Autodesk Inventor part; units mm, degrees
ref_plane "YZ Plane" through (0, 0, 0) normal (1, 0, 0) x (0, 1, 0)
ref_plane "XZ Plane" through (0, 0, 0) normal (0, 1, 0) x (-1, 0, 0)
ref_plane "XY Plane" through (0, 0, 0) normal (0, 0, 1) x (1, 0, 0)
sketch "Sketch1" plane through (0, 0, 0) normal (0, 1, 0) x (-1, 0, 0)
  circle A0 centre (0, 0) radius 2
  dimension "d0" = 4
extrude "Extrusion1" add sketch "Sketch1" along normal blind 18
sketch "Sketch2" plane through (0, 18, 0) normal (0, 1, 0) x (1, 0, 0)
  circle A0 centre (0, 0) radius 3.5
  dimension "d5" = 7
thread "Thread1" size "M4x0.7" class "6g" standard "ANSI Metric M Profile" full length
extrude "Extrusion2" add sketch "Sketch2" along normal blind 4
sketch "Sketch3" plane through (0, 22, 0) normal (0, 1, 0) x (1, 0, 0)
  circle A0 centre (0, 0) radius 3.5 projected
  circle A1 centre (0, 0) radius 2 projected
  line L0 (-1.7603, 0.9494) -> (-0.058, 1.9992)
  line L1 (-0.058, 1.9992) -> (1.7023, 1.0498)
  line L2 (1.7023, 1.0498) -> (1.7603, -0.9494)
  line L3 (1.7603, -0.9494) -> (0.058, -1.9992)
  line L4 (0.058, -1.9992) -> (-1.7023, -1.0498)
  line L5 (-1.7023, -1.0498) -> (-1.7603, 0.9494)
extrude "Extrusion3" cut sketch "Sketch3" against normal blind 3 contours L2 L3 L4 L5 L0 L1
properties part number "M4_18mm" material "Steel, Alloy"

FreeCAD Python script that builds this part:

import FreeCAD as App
import Part
import Sketcher

V = App.Vector
Q = App.Units.Quantity

doc = App.newDocument("Part")
body = doc.addObject("PartDesign::Body", "Body")

sketch1 = doc.addObject("Sketcher::SketchObject", "Sketch")
body.addObject(sketch1)
sketch1.AttachmentSupport = (doc.XZ_Plane, [""])
sketch1.MapMode = "FlatFace"
sketch1.addGeometry(Part.Circle(V(0, 0, 0), V(0, 0, 1), 2), False)
sketch1.addConstraint(Sketcher.Constraint("Coincident", 0, 3, -1, 1))
sketch1.addConstraint(Sketcher.Constraint("Diameter", 0, Q("4 mm")))
pad1 = doc.addObject("PartDesign::Pad", "Pad")
body.addObject(pad1)
pad1.Profile = sketch1
pad1.Length = 18
pad1.Reversed = True

sketch2 = doc.addObject("Sketcher::SketchObject", "Sketch001")
body.addObject(sketch2)
sketch2.AttachmentSupport = (doc.XZ_Plane, [""])
sketch2.MapMode = "FlatFace"
sketch2.AttachmentOffset = App.Placement(V(0, 0, -18), App.Rotation())
sketch2.addGeometry(Part.Circle(V(0, 0, 0), V(0, 0, 1), 3.5), False)
sketch2.addConstraint(Sketcher.Constraint("Coincident", 0, 3, -1, 1))
sketch2.addConstraint(Sketcher.Constraint("Diameter", 0, Q("7 mm")))
pad2 = doc.addObject("PartDesign::Pad", "Pad001")
body.addObject(pad2)
pad2.Profile = sketch2
pad2.Length = 4
pad2.Reversed = True

sketch3 = doc.addObject("Sketcher::SketchObject", "Sketch002")
body.addObject(sketch3)
sketch3.AttachmentSupport = (doc.XZ_Plane, [""])
sketch3.MapMode = "FlatFace"
sketch3.AttachmentOffset = App.Placement(V(0, 0, -22), App.Rotation())
sketch3.addGeometry(Part.LineSegment(V(1.8, 0.9, 0), V(1.7, -1, 0)), False)
sketch3.addGeometry(Part.LineSegment(V(1.7, -1, 0), V(-0.1, -2, 0)), False)
sketch3.addGeometry(Part.LineSegment(V(-0.1, -2, 0), V(-1.8, -0.9, 0)), False)
sketch3.addGeometry(Part.LineSegment(V(-1.8, -0.9, 0), V(-1.7, 1, 0)), False)
sketch3.addGeometry(Part.LineSegment(V(-1.7, 1, 0), V(0.1, 2, 0)), False)
sketch3.addGeometry(Part.LineSegment(V(0.1, 2, 0), V(1.8, 0.9, 0)), False)
sketch3.addConstraint(Sketcher.Constraint("Coincident", 0, 2, 1, 1))
sketch3.addConstraint(Sketcher.Constraint("Coincident", 1, 2, 2, 1))
sketch3.addConstraint(Sketcher.Constraint("Coincident", 2, 2, 3, 1))
sketch3.addConstraint(Sketcher.Constraint("Coincident", 3, 2, 4, 1))
sketch3.addConstraint(Sketcher.Constraint("Coincident", 4, 2, 5, 1))
sketch3.addConstraint(Sketcher.Constraint("Coincident", 5, 2, 0, 1))
sketch3.addConstraint(Sketcher.Constraint("Symmetric", 0, 2, 3, 2, -1, 1))
sketch3.addConstraint(Sketcher.Constraint("Symmetric", 1, 2, 4, 2, -1, 1))
sketch3.addConstraint(Sketcher.Constraint("Symmetric", 2, 2, 5, 2, -1, 1))
sketch3.addConstraint(Sketcher.Constraint("Equal", 0, 1))
sketch3.addConstraint(Sketcher.Constraint("Equal", 1, 2))
sketch3.addConstraint(Sketcher.Constraint("Distance", 0, Q("2 mm")))
sketch3.addConstraint(Sketcher.Constraint("Angle", 1, Q("-151.6602 deg")))
sketch3.addConstraint(Sketcher.Constraint("DistanceX", 1, 2, -1, 1, Q("0.058 mm")))
sketch3.addConstraint(Sketcher.Constraint("DistanceX", 2, 2, 3, 2, Q("0.058 mm")))
pocket1 = doc.addObject("PartDesign::Pocket", "Pocket")
body.addObject(pocket1)
pocket1.Profile = sketch3
pocket1.Length = 3
pocket1.Reversed = True

doc.recompute()
